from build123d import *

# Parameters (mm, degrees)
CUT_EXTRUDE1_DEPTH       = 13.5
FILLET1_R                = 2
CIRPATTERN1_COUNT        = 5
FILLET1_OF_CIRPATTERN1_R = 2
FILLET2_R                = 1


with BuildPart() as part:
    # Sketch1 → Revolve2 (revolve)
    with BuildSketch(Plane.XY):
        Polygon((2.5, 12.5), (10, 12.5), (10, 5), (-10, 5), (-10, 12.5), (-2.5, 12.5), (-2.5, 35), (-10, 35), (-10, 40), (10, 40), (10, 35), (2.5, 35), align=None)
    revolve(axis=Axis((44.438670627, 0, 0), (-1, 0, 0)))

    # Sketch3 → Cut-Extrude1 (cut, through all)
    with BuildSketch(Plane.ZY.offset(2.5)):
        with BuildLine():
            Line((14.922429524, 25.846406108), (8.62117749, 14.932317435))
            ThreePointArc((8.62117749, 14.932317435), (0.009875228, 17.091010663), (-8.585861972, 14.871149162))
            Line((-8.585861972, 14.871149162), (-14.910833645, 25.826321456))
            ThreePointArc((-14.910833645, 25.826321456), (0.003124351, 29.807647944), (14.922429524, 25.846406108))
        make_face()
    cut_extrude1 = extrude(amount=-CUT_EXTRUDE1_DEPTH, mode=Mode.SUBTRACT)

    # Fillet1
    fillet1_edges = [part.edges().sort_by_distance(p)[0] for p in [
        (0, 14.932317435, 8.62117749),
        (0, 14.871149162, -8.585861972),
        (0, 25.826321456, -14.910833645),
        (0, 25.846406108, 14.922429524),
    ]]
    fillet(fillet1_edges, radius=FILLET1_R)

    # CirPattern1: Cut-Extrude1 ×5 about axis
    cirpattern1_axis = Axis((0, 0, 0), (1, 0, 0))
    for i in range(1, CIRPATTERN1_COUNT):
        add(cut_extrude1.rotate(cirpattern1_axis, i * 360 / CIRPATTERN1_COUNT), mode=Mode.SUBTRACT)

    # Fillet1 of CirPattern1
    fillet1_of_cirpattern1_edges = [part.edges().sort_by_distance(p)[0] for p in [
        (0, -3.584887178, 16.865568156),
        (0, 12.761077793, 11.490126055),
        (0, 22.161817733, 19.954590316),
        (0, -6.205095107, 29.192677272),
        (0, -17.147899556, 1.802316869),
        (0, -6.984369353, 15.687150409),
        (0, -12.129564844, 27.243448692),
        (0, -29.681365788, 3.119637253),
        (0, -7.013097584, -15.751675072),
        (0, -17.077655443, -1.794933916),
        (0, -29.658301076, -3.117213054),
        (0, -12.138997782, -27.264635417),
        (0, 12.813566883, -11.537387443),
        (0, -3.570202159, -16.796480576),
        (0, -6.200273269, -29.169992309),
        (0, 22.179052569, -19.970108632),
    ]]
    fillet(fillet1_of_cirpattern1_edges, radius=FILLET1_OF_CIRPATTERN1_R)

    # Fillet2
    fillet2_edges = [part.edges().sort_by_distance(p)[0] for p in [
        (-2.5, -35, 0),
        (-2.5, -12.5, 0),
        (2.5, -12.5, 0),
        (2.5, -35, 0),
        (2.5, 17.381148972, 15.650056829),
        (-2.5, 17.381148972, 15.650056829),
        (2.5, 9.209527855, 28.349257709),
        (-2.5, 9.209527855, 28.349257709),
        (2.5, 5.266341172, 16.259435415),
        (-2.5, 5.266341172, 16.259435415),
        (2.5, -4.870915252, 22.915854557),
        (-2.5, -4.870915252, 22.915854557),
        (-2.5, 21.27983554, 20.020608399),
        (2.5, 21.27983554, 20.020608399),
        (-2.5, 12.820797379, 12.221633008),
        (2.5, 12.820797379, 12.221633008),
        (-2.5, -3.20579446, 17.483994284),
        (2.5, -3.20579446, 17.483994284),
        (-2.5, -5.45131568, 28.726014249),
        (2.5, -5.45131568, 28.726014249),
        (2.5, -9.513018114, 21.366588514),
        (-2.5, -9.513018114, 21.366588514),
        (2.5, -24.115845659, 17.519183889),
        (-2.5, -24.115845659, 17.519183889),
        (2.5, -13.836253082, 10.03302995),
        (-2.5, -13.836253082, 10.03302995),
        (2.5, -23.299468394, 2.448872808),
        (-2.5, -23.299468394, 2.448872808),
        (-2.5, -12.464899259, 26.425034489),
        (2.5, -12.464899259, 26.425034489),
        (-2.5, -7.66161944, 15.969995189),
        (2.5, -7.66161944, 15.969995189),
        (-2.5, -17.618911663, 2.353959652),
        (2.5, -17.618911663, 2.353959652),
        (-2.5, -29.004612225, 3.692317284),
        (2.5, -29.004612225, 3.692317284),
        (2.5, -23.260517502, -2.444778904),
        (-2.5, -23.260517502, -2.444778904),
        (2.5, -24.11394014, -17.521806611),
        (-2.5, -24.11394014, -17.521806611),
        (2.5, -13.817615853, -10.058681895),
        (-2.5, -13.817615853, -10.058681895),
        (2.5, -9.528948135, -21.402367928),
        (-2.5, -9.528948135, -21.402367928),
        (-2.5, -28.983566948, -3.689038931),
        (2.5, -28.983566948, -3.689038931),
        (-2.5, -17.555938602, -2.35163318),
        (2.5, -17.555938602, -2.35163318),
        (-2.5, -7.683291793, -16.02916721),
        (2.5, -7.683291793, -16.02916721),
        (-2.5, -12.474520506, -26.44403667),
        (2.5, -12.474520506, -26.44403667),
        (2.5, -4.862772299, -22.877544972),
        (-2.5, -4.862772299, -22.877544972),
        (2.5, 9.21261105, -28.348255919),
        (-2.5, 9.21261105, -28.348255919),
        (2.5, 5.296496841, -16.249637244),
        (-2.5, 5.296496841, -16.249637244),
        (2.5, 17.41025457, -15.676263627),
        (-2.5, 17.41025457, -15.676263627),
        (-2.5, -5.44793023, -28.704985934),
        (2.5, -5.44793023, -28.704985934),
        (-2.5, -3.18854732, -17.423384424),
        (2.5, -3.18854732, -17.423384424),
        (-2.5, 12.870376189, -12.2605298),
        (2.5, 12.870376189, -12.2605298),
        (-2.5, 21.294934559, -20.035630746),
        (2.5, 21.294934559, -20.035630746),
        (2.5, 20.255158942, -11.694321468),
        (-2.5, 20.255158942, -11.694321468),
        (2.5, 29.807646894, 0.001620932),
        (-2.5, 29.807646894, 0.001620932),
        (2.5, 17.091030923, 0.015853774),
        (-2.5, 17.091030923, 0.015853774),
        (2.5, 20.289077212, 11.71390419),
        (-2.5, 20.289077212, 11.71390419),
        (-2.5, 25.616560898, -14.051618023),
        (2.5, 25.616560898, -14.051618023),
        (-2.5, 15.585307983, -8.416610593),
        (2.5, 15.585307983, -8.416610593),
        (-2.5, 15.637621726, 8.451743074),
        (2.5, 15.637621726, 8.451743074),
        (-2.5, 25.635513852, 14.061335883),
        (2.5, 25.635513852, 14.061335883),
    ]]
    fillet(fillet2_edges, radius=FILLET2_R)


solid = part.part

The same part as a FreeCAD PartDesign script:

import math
import FreeCAD as App
import Part
import Sketcher

V = App.Vector
Q = App.Units.Quantity


def edges_at(feature, points):
    """Names of the edges that pass closest to the given points."""
    edges = feature.Shape.Edges
    near = lambda p: min(range(len(edges)), key=lambda i: edges[i].distToShape(Part.Vertex(*p))[0])
    return sorted({f"Edge{near(p) + 1}" for p in points})

doc = App.newDocument("Part")
params = doc.addObject("Spreadsheet::Sheet", "Params")
for row, (alias, value) in enumerate([
    ("sketch1_width", "20 mm"),
    ("sketch1_height", "5 mm"),
    ("sketch1_width2", "7.5 mm"),
    ("sketch1_height2", "22.5 mm"),
    ("revolution_angle", "360 deg"),
    ("sketch2_radius", "30 mm"),
    ("sketch2_radius2", "18 mm"),
    ("fillet_radius", "2 mm"),
    ("fillet2_radius", "2 mm"),
    ("fillet3_radius", "1 mm"),
], start=1):
    params.set(f"A{row}", alias)
    params.set(f"B{row}", "=" + value)
    params.setAlias(f"B{row}", alias)

body = doc.addObject("PartDesign::Body", "Body")

sketch1 = body.newObject("Sketcher::SketchObject", "Sketch")
sketch1.AttachmentSupport = (doc.getObject("XY_Plane"), [""])
sketch1.MapMode = "FlatFace"
sketch1.addGeometry(Part.LineSegment(V(10, 12, 0), V(2, 12, 0)), False)
sketch1.addGeometry(Part.LineSegment(V(2, 12, 0), V(2, 35, 0)), False)
sketch1.addGeometry(Part.LineSegment(V(2, 35, 0), V(10, 35, 0)), False)
sketch1.addGeometry(Part.LineSegment(V(10, 35, 0), V(10, 40, 0)), False)
sketch1.addGeometry(Part.LineSegment(V(10, 40, 0), V(-10, 40, 0)), False)
sketch1.addGeometry(Part.LineSegment(V(-10, 40, 0), V(-10, 35, 0)), False)
sketch1.addGeometry(Part.LineSegment(V(-10, 35, 0), V(-2, 35, 0)), False)
sketch1.addGeometry(Part.LineSegment(V(-2, 35, 0), V(-2, 12, 0)), False)
sketch1.addGeometry(Part.LineSegment(V(-2, 12, 0), V(-10, 12, 0)), False)
sketch1.addGeometry(Part.LineSegment(V(-10, 12, 0), V(-10, 5, 0)), False)
sketch1.addGeometry(Part.LineSegment(V(-10, 5, 0), V(10, 5, 0)), False)
sketch1.addGeometry(Part.LineSegment(V(10, 5, 0), V(10, 12, 0)), False)
sketch1.addConstraint(Sketcher.Constraint("Coincident", 0, 2, 1, 1))
sketch1.addConstraint(Sketcher.Constraint("Coincident", 1, 2, 2, 1))
sketch1.addConstraint(Sketcher.Constraint("Coincident", 2, 2, 3, 1))
sketch1.addConstraint(Sketcher.Constraint("Coincident", 3, 2, 4, 1))
sketch1.addConstraint(Sketcher.Constraint("Coincident", 4, 2, 5, 1))
sketch1.addConstraint(Sketcher.Constraint("Coincident", 5, 2, 6, 1))
sketch1.addConstraint(Sketcher.Constraint("Coincident", 6, 2, 7, 1))
sketch1.addConstraint(Sketcher.Constraint("Coincident", 7, 2, 8, 1))
sketch1.addConstraint(Sketcher.Constraint("Coincident", 8, 2, 9, 1))
sketch1.addConstraint(Sketcher.Constraint("Coincident", 9, 2, 10, 1))
sketch1.addConstraint(Sketcher.Constraint("Coincident", 10, 2, 11, 1))
sketch1.addConstraint(Sketcher.Constraint("Coincident", 11, 2, 0, 1))
sketch1.addConstraint(Sketcher.Constraint("Horizontal", 0))
sketch1.addConstraint(Sketcher.Constraint("Vertical", 1))
sketch1.addConstraint(Sketcher.Constraint("Horizontal", 2))
sketch1.addConstraint(Sketcher.Constraint("Vertical", 3))
sketch1.addConstraint(Sketcher.Constraint("Horizontal", 4))
sketch1.addConstraint(Sketcher.Constraint("Vertical", 5))
sketch1.addConstraint(Sketcher.Constraint("Horizontal", 6))
sketch1.addConstraint(Sketcher.Constraint("Vertical", 7))
sketch1.addConstraint(Sketcher.Constraint("Horizontal", 8))
sketch1.addConstraint(Sketcher.Constraint("Vertical", 9))
sketch1.addConstraint(Sketcher.Constraint("Horizontal", 10))
sketch1.addConstraint(Sketcher.Constraint("Vertical", 11))
sketch1.addConstraint(Sketcher.Constraint("Symmetric", 2, 2, 5, 2, -2))
sketch1.addConstraint(Sketcher.Constraint("Symmetric", 0, 2, 7, 2, -2))
sketch1.addConstraint(Sketcher.Constraint("Vertical", 5, 2, 8, 2))
sketch1.addConstraint(Sketcher.Constraint("Vertical", 3, 2, 10, 2))
sketch1.addConstraint(Sketcher.Constraint("Equal", 8, 9))
sketch1.addConstraint(Sketcher.Constraint("DistanceX", 4, 2, 4, 1, Q("20 mm")))
sketch1.addConstraint(Sketcher.Constraint("DistanceY", 3, 1, 3, 2, Q("5 mm")))
sketch1.addConstraint(Sketcher.Constraint("DistanceX", 0, 2, 0, 1, Q("7.5 mm")))
sketch1.addConstraint(Sketcher.Constraint("DistanceY", 1, 1, 1, 2, Q("22.5 mm")))
sketch1.addConstraint(Sketcher.Constraint("DistanceY", -1, 1, 1, 2, Q("35 mm")))
sketch1.setExpression("Constraints[29]", "Params.sketch1_width")
sketch1.setExpression("Constraints[30]", "Params.sketch1_height")
sketch1.setExpression("Constraints[31]", "Params.sketch1_width2")
sketch1.setExpression("Constraints[32]", "Params.sketch1_height2")
revolution = body.newObject("PartDesign::Revolution", "Revolution")
revolution.Profile = sketch1
revolution.ReferenceAxis = (sketch1, ["H_Axis"])
revolution.setExpression("Angle", "Params.revolution_angle")

sketch2 = body.newObject("Sketcher::SketchObject", "Sketch001")
sketch2.AttachmentSupport = (doc.getObject("YZ_Plane"), [""])
sketch2.MapMode = "FlatFace"
sketch2.AttachmentOffset = App.Placement(V(0, 0, -2.5), App.Rotation())
sketch2.addGeometry(Part.LineSegment(V(15, 9, 0), V(26, 15, 0)), False)
sketch2.addGeometry(Part.ArcOfCircle(Part.Circle(V(0, 0, 0), V(0, 0, 1), 30), math.radians(-30), math.radians(30)), False)
sketch2.addGeometry(Part.LineSegment(V(26, -15, 0), V(15, -9, 0)), False)
sketch2.addGeometry(Part.ArcOfCircle(Part.Circle(V(-1, 0, 0), V(0, 0, 1), 18), math.radians(-29), math.radians(28)), False)
sketch2.addConstraint(Sketcher.Constraint("Coincident", 0, 2, 1, 2))
sketch2.addConstraint(Sketcher.Constraint("Coincident", 1, 1, 2, 1))
sketch2.addConstraint(Sketcher.Constraint("Coincident", 2, 2, 3, 1))
sketch2.addConstraint(Sketcher.Constraint("Coincident", 3, 2, 0, 1))
sketch2.addConstraint(Sketcher.Constraint("Radius", 1, Q("30 mm")))
sketch2.addConstraint(Sketcher.Constraint("Radius", 3, Q("18 mm")))
sketch2.addConstraint(Sketcher.Constraint("Angle", 0, Q("30 deg")))
sketch2.addConstraint(Sketcher.Constraint("Angle", 2, Q("150 deg")))
sketch2.addConstraint(Sketcher.Constraint("DistanceY", -1, 1, 1, 3, Q("0.023321 mm")))
sketch2.addConstraint(Sketcher.Constraint("DistanceY", -1, 1, 3, 3, Q("0.073862 mm")))
sketch2.addConstraint(Sketcher.Constraint("DistanceY", -1, 1, 0, 2, Q("14.92243 mm")))
sketch2.addConstraint(Sketcher.Constraint("DistanceX", -1, 1, 1, 1, Q("25.826321 mm")))
sketch2.addConstraint(Sketcher.Constraint("DistanceX", -1, 1, 2, 2, Q("14.871149 mm")))
sketch2.addConstraint(Sketcher.Constraint("DistanceY", 2, 2, -1, 1, Q("8.585862 mm")))
sketch2.setExpression("Constraints[4]", "Params.sketch2_radius")
sketch2.setExpression("Constraints[5]", "Params.sketch2_radius2")
pocket1 = body.newObject("PartDesign::Pocket", "Pocket")
pocket1.Profile = sketch2
pocket1.Type = "ThroughAll"
pocket1.Reversed = True
doc.recompute()

fillet = body.newObject("PartDesign::Fillet", "Fillet")
fillet.Base = (pocket1, edges_at(pocket1, [
    (0, 14.932, 8.621),
    (0, 14.871, -8.586),
    (0, 25.826, -14.911),
    (0, 25.846, 14.922),
]))
fillet.setExpression("Radius", "Params.fillet_radius")
doc.recompute()

polarpattern = body.newObject("PartDesign::PolarPattern", "PolarPattern")
polarpattern.Originals = [pocket1]
polarpattern.Axis = (doc.getObject("X_Axis"), [""])
polarpattern.Angle = 360
polarpattern.Occurrences = 5
body.Tip = polarpattern
doc.recompute()

fillet2 = body.newObject("PartDesign::Fillet", "Fillet001")
fillet2.Base = (polarpattern, edges_at(polarpattern, [
    (0, -3.585, 16.866),
    (0, 12.761, 11.49),
    (0, 22.162, 19.955),
    (0, -6.205, 29.193),
    (0, -17.148, 1.802),
    (0, -6.984, 15.687),
    (0, -12.13, 27.243),
    (0, -29.681, 3.12),
    (0, -7.013, -15.752),
    (0, -17.078, -1.795),
    (0, -29.658, -3.117),
    (0, -12.139, -27.265),
    (0, 12.814, -11.537),
    (0, -3.57, -16.796),
    (0, -6.2, -29.17),
    (0, 22.179, -19.97),
]))
fillet2.setExpression("Radius", "Params.fillet2_radius")
doc.recompute()

fillet3 = body.newObject("PartDesign::Fillet", "Fillet002")
fillet3.Base = (fillet2, edges_at(fillet2, [
    (-2.5, -35, 0),
    (-2.5, -12.5, 0),
    (2.5, -12.5, 0),
    (2.5, -35, 0),
    (2.5, 17.381, 15.65),
    (-2.5, 17.381, 15.65),
    (2.5, 9.21, 28.349),
    (-2.5, 9.21, 28.349),
    (2.5, 5.266, 16.259),
    (-2.5, 5.266, 16.259),
    (2.5, -4.871, 22.916),
    (-2.5, -4.871, 22.916),
    (-2.5, 21.28, 20.021),
    (2.5, 21.28, 20.021),
    (-2.5, 12.821, 12.222),
    (2.5, 12.821, 12.222),
    (-2.5, -3.206, 17.484),
    (2.5, -3.206, 17.484),
    (-2.5, -5.451, 28.726),
    (2.5, -5.451, 28.726),
    (2.5, -9.513, 21.367),
    (-2.5, -9.513, 21.367),
    (2.5, -24.116, 17.519),
    (-2.5, -24.116, 17.519),
    (2.5, -13.836, 10.033),
    (-2.5, -13.836, 10.033),
    (2.5, -23.299, 2.449),
    (-2.5, -23.299, 2.449),
    (-2.5, -12.465, 26.425),
    (2.5, -12.465, 26.425),
    (-2.5, -7.662, 15.97),
    (2.5, -7.662, 15.97),
    (-2.5, -17.619, 2.354),
    (2.5, -17.619, 2.354),
    (-2.5, -29.005, 3.692),
    (2.5, -29.005, 3.692),
    (2.5, -23.261, -2.445),
    (-2.5, -23.261, -2.445),
    (2.5, -24.114, -17.522),
    (-2.5, -24.114, -17.522),
    (2.5, -13.818, -10.059),
    (-2.5, -13.818, -10.059),
    (2.5, -9.529, -21.402),
    (-2.5, -9.529, -21.402),
    (-2.5, -28.984, -3.689),
    (2.5, -28.984, -3.689),
    (-2.5, -17.556, -2.352),
    (2.5, -17.556, -2.352),
    (-2.5, -7.683, -16.029),
    (2.5, -7.683, -16.029),
    (-2.5, -12.475, -26.444),
    (2.5, -12.475, -26.444),
    (2.5, -4.863, -22.878),
    (-2.5, -4.863, -22.878),
    (2.5, 9.213, -28.348),
    (-2.5, 9.213, -28.348),
    (2.5, 5.296, -16.25),
    (-2.5, 5.296, -16.25),
    (2.5, 17.41, -15.676),
    (-2.5, 17.41, -15.676),
    (-2.5, -5.448, -28.705),
    (2.5, -5.448, -28.705),
    (-2.5, -3.189, -17.423),
    (2.5, -3.189, -17.423),
    (-2.5, 12.87, -12.261),
    (2.5, 12.87, -12.261),
    (-2.5, 21.295, -20.036),
    (2.5, 21.295, -20.036),
    (2.5, 20.255, -11.694),
    (-2.5, 20.255, -11.694),
    (2.5, 29.808, 0.002),
    (-2.5, 29.808, 0.002),
    (2.5, 17.091, 0.016),
    (-2.5, 17.091, 0.016),
    (2.5, 20.289, 11.714),
    (-2.5, 20.289, 11.714),
    (-2.5, 25.617, -14.052),
    (2.5, 25.617, -14.052),
    (-2.5, 15.585, -8.417),
    (2.5, 15.585, -8.417),
    (-2.5, 15.638, 8.452),
    (2.5, 15.638, 8.452),
    (-2.5, 25.636, 14.061),
    (2.5, 25.636, 14.061),
]))
fillet3.setExpression("Radius", "Params.fillet3_radius")

doc.recompute()
